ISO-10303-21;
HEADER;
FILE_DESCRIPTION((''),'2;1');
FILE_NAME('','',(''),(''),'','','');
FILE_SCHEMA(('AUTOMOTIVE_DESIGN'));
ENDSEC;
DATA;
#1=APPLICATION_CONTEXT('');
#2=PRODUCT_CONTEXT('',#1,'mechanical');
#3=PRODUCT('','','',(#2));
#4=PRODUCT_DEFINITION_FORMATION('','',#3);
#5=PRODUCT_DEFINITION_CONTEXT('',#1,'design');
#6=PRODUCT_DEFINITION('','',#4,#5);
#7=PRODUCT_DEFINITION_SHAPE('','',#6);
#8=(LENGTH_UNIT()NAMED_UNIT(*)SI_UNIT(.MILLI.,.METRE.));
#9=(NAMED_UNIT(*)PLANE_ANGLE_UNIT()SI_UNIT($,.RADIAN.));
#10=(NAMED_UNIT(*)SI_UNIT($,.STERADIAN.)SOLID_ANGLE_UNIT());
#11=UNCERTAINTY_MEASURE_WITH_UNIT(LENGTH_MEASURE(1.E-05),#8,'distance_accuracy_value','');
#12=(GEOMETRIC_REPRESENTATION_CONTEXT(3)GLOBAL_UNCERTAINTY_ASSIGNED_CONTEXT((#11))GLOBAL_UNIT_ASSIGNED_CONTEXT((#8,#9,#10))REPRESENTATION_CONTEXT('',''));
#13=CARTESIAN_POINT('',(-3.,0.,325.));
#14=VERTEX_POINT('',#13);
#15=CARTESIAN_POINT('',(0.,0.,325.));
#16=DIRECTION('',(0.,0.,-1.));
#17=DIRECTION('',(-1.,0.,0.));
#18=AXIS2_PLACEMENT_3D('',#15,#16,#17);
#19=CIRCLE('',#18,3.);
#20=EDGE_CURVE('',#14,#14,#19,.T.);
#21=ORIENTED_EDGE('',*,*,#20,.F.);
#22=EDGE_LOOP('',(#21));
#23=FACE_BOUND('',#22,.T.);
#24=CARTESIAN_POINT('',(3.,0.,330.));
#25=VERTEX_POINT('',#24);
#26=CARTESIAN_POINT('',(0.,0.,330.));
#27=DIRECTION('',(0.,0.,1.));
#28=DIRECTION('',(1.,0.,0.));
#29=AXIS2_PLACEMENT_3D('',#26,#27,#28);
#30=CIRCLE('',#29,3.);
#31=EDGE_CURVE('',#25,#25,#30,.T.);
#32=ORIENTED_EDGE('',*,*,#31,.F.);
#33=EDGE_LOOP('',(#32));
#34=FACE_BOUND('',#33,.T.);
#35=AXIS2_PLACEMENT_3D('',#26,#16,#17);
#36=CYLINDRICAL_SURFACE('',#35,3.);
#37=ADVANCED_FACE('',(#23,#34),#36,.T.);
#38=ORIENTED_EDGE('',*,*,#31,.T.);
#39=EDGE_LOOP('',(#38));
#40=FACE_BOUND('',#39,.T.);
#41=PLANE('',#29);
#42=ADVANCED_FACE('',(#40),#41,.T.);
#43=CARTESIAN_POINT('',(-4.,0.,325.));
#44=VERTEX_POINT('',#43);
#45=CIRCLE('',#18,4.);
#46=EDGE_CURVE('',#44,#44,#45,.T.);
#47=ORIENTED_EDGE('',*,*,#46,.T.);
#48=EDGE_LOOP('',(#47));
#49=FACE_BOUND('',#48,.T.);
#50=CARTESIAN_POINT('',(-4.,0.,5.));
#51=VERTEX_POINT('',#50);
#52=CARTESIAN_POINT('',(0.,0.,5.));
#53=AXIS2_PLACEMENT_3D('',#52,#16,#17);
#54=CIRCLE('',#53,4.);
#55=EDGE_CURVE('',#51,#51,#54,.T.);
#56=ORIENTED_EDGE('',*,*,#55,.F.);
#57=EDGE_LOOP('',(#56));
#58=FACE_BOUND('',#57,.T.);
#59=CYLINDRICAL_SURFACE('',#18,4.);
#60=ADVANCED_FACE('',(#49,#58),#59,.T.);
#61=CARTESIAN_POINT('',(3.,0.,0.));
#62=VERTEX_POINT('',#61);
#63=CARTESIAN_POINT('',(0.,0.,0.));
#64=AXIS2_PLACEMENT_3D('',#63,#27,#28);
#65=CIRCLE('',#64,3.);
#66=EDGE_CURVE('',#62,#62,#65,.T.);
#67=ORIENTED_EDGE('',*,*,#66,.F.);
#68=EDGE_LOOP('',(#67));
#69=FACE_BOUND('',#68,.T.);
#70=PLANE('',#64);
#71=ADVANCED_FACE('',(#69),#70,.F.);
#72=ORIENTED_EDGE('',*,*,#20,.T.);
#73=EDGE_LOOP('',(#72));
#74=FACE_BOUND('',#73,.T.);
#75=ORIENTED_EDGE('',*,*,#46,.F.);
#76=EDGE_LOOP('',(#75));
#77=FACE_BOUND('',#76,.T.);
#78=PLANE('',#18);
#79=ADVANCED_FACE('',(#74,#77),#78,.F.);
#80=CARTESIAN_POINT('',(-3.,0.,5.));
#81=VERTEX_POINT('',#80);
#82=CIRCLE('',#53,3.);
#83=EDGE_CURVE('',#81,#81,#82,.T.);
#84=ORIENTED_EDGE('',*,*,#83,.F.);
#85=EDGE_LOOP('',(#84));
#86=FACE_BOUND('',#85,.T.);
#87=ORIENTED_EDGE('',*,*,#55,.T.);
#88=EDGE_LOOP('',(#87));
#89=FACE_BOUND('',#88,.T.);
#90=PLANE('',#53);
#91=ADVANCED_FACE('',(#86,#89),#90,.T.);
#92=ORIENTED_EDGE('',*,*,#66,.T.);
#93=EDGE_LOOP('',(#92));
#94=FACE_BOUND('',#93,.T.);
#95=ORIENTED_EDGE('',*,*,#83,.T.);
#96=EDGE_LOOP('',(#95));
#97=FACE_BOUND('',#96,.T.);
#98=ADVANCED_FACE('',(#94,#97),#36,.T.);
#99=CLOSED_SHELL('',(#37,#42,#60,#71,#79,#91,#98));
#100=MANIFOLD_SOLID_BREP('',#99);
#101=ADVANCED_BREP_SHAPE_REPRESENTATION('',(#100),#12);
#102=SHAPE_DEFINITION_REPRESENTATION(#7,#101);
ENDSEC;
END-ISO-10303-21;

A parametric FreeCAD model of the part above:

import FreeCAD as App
import Part
import Sketcher
Q = App.Units.Quantity

doc = App.newDocument("Part")
params = doc.addObject("Spreadsheet::Sheet", "Params")
for row, (alias, value) in enumerate([
    ("sketch1_diameter", "6 mm"),
    ("pad1_length", "330 mm"),
    ("sketch2_diameter", "8 mm"),
    ("pad2_length", "320 mm"),
], start=1):
    params.set(f"A{row}", alias)
    params.set(f"B{row}", "=" + value)
    params.setAlias(f"B{row}", alias)

body = doc.addObject("PartDesign::Body", "Body")

# Sketch on XY plane
sketch1 = body.newObject("Sketcher::SketchObject", "Sketch")
sketch1.AttachmentSupport = (doc.getObject("XY_Plane"), [""])
sketch1.MapMode = "FlatFace"
sketch1.addGeometry(Part.Circle(App.Vector(0, 0, 0), App.Vector(0, 0, 1), 3), False)
sketch1.addConstraint(Sketcher.Constraint("Coincident", 0, 3, -1, 1))
sketch1.addConstraint(Sketcher.Constraint("Diameter", 0, Q("6 mm")))
sketch1.setExpression("Constraints[1]", "Params.sketch1_diameter")
pad1 = body.newObject("PartDesign::Pad", "Pad")
pad1.Profile = sketch1
pad1.setExpression("Length", "Params.pad1_length")

# Sketch on XY plane
sketch2 = body.newObject("Sketcher::SketchObject", "Sketch001")
sketch2.AttachmentSupport = (doc.getObject("XY_Plane"), [""])
sketch2.MapMode = "FlatFace"
sketch2.AttachmentOffset = App.Placement(App.Vector(0, 0, 5), App.Rotation())
sketch2.addGeometry(Part.Circle(App.Vector(0, 0, 0), App.Vector(0, 0, 1), 4), False)
sketch2.addConstraint(Sketcher.Constraint("Coincident", 0, 3, -1, 1))
sketch2.addConstraint(Sketcher.Constraint("Diameter", 0, Q("8 mm")))
sketch2.setExpression("Constraints[1]", "Params.sketch2_diameter")
pad2 = body.newObject("PartDesign::Pad", "Pad001")
pad2.Profile = sketch2
pad2.setExpression("Length", "Params.pad2_length")

doc.recompute()
